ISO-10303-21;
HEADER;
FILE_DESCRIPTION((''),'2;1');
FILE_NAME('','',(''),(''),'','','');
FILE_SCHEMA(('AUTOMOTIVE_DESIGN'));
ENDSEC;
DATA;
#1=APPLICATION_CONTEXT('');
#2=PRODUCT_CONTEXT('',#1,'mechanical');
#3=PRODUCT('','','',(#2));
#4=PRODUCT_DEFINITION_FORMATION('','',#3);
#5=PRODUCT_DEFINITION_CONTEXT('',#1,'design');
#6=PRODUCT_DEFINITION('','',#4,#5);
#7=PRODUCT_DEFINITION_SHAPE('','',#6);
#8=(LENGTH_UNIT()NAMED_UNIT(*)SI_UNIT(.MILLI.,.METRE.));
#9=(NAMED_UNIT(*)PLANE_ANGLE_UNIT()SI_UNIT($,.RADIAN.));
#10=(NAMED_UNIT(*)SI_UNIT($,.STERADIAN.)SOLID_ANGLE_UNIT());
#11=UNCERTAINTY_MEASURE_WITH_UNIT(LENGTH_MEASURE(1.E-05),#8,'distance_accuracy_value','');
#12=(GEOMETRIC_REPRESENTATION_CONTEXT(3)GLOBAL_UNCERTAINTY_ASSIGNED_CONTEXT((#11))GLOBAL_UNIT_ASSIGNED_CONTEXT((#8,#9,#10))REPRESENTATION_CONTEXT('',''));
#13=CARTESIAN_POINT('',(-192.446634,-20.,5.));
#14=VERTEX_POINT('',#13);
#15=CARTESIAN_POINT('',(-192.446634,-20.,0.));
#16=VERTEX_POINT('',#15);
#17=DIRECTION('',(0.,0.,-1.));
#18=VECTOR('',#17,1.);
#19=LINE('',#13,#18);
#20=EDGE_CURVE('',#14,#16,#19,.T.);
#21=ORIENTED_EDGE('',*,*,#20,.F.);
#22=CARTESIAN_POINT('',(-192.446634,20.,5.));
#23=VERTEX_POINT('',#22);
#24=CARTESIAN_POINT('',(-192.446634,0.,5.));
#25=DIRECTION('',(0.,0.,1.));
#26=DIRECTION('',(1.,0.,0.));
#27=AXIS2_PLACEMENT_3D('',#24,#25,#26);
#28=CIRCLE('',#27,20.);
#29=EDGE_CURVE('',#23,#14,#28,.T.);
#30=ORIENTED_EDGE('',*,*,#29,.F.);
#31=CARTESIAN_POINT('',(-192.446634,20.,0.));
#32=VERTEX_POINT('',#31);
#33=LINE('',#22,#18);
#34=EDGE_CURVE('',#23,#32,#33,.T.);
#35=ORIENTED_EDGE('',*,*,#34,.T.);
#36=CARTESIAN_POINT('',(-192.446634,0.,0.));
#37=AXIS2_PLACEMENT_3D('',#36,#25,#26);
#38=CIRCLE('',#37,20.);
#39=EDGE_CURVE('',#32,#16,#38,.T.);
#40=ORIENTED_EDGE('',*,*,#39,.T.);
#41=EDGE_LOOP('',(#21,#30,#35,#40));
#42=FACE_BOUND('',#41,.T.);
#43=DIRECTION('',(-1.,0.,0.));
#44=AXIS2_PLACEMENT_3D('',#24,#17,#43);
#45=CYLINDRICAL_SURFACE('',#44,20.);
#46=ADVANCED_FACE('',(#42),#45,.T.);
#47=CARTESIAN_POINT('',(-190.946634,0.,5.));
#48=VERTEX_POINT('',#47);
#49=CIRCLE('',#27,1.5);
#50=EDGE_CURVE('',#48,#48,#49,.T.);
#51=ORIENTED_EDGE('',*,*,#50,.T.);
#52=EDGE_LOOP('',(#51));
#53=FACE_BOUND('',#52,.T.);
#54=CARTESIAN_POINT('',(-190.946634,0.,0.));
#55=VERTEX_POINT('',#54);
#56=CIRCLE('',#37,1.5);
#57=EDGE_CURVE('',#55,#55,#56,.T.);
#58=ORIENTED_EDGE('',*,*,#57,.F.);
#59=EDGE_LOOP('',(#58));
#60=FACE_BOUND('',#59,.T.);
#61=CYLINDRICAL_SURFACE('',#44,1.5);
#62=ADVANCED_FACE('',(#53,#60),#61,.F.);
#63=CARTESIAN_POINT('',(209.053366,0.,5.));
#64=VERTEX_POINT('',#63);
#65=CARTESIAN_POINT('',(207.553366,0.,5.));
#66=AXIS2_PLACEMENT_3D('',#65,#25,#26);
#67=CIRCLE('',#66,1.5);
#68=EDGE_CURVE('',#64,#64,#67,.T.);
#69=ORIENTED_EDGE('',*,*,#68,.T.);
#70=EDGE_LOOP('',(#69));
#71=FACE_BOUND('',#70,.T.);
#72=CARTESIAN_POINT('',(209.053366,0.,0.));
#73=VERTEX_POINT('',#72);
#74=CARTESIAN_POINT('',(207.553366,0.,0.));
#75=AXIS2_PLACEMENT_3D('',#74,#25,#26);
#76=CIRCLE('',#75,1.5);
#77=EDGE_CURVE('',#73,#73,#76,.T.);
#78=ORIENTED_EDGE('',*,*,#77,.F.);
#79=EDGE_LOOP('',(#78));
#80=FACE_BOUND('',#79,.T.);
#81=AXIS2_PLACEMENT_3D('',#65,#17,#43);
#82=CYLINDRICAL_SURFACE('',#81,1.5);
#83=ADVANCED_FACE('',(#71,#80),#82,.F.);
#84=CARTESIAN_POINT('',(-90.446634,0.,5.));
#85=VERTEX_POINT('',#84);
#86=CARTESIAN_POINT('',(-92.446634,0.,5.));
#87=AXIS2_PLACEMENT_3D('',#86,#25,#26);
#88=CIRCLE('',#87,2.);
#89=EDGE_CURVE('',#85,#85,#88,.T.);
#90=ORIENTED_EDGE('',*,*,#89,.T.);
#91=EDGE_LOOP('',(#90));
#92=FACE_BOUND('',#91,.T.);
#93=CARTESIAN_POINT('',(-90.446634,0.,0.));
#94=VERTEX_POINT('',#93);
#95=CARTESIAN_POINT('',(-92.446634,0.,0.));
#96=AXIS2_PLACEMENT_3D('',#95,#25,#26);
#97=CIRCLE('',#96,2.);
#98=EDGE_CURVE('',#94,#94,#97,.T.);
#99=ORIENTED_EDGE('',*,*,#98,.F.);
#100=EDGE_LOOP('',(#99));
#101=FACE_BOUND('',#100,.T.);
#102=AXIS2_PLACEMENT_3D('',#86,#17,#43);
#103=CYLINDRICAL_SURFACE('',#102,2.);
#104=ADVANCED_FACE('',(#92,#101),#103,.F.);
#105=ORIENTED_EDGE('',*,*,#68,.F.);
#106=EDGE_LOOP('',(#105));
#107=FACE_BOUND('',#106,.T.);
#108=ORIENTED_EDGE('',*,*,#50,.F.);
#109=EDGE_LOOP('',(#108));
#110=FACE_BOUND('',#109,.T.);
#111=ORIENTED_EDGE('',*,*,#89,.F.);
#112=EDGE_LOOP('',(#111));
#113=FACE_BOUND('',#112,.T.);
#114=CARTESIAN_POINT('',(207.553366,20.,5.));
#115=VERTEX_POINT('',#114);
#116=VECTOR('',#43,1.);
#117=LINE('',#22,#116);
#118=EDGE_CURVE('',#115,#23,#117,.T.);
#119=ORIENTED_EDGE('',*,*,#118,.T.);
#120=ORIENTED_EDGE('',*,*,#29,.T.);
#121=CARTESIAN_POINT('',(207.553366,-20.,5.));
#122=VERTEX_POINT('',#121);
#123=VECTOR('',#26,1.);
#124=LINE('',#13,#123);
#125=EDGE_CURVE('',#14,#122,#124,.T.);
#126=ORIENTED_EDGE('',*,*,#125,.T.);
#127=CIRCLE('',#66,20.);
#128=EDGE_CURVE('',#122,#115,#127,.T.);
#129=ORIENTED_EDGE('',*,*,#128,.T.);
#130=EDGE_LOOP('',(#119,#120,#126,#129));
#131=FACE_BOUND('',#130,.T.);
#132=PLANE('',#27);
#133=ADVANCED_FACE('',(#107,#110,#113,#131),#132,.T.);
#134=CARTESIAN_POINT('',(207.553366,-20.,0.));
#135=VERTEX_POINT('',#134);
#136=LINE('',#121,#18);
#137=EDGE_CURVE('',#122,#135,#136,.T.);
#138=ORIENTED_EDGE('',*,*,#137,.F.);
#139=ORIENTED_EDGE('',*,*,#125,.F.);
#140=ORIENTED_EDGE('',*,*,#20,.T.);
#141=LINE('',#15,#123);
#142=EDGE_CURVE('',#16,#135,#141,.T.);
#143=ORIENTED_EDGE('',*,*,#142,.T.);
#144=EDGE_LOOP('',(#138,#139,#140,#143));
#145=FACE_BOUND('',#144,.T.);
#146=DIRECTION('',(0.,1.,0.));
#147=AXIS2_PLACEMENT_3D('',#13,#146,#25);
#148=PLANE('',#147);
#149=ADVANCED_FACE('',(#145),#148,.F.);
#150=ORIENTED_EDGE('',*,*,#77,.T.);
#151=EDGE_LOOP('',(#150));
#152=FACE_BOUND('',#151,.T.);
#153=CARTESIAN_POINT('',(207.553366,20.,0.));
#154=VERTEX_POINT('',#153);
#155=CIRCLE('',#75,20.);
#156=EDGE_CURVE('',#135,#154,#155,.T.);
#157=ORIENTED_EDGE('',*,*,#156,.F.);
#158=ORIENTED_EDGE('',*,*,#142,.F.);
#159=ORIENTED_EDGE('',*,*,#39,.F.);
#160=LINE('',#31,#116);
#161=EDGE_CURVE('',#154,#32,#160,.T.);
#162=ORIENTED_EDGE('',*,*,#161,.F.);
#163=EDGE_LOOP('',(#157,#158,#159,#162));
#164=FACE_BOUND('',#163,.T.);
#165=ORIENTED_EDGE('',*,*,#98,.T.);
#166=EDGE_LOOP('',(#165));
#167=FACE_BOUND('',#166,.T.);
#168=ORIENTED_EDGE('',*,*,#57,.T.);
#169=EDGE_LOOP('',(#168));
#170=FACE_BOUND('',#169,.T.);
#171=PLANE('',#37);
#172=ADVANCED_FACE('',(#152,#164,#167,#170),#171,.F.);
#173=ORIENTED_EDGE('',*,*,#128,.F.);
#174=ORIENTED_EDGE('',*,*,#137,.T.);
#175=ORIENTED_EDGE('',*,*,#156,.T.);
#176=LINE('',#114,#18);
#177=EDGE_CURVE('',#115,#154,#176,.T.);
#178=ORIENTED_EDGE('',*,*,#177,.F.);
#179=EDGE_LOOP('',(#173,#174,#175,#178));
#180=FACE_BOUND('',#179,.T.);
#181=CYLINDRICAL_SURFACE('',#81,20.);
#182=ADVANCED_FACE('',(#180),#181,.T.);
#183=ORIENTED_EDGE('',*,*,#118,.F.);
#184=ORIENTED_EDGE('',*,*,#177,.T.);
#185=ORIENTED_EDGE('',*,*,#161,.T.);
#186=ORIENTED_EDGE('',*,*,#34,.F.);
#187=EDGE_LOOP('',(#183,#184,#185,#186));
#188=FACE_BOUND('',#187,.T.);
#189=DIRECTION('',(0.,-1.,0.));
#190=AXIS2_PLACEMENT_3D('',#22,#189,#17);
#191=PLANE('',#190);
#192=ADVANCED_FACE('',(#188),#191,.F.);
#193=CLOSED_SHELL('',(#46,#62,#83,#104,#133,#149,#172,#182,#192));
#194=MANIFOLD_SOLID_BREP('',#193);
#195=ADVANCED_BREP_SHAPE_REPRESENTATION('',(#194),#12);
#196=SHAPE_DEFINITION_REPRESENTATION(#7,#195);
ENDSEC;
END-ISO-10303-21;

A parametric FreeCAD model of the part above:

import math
import FreeCAD as App
import Part
import Sketcher
from FreeCAD import Vector

doc = App.newDocument("Part")
body = doc.addObject("PartDesign::Body", "Body")

# Sketch on XY plane
sketch1 = body.newObject("Sketcher::SketchObject", "Sketch")
sketch1.AttachmentSupport = (doc.getObject("XY_Plane"), [""])
sketch1.MapMode = "FlatFace"
sketch1.addGeometry(Part.LineSegment(Vector(207.6, 20, 0), Vector(-192.4, 20, 0)), False)
sketch1.addGeometry(Part.ArcOfCircle(Part.Circle(Vector(-192.4, 0, 0), Vector(0, 0, 1), 20), math.radians(90), math.radians(270)), False)
sketch1.addGeometry(Part.LineSegment(Vector(-192.4, -20, 0), Vector(207.6, -20, 0)), False)
sketch1.addGeometry(Part.ArcOfCircle(Part.Circle(Vector(207.6, 0, 0), Vector(0, 0, 1), 20), math.radians(-90), math.radians(90)), False)
sketch1.addGeometry(Part.Circle(Vector(207.6, 0, 0), Vector(0, 0, 1), 1.5), False)
sketch1.addGeometry(Part.Circle(Vector(-92.4, 0, 0), Vector(0, 0, 1), 2), False)
sketch1.addGeometry(Part.Circle(Vector(-192.4, 0, 0), Vector(0, 0, 1), 1.5), False)
sketch1.addConstraint(Sketcher.Constraint("Tangent", 0, 2, 1, 1))
sketch1.addConstraint(Sketcher.Constraint("Tangent", 1, 2, 2, 1))
sketch1.addConstraint(Sketcher.Constraint("Tangent", 2, 2, 3, 1))
sketch1.addConstraint(Sketcher.Constraint("Tangent", 3, 2, 0, 1))
sketch1.addConstraint(Sketcher.Constraint("Horizontal", 0))
sketch1.addConstraint(Sketcher.Constraint("Horizontal", 2))
sketch1.addConstraint(Sketcher.Constraint("Coincident", 4, 3, 3, 3))
sketch1.addConstraint(Sketcher.Constraint("Coincident", 6, 3, 1, 3))
sketch1.addConstraint(Sketcher.Constraint("Equal", 4, 6))
sketch1.addConstraint(Sketcher.Constraint("PointOnObject", 1, 3, -1))
sketch1.addConstraint(Sketcher.Constraint("PointOnObject", 5, 3, -1))
sketch1.addConstraint(Sketcher.Constraint("Diameter", 4, 3.0))
sketch1.addConstraint(Sketcher.Constraint("Diameter", 5, 4.0))
sketch1.addConstraint(Sketcher.Constraint("Radius", 1, 20.0))
sketch1.addConstraint(Sketcher.Constraint("DistanceX", 0, 2, 0, 1, 400.0))
sketch1.addConstraint(Sketcher.Constraint("DistanceX", 1, 3, 5, 3, 100.0))
sketch1.addConstraint(Sketcher.Constraint("DistanceX", 1, 3, -1, 1, 192.446634))
pad1 = body.newObject("PartDesign::Pad", "Pad")
pad1.Profile = sketch1
pad1.Length = 5

doc.recompute()
